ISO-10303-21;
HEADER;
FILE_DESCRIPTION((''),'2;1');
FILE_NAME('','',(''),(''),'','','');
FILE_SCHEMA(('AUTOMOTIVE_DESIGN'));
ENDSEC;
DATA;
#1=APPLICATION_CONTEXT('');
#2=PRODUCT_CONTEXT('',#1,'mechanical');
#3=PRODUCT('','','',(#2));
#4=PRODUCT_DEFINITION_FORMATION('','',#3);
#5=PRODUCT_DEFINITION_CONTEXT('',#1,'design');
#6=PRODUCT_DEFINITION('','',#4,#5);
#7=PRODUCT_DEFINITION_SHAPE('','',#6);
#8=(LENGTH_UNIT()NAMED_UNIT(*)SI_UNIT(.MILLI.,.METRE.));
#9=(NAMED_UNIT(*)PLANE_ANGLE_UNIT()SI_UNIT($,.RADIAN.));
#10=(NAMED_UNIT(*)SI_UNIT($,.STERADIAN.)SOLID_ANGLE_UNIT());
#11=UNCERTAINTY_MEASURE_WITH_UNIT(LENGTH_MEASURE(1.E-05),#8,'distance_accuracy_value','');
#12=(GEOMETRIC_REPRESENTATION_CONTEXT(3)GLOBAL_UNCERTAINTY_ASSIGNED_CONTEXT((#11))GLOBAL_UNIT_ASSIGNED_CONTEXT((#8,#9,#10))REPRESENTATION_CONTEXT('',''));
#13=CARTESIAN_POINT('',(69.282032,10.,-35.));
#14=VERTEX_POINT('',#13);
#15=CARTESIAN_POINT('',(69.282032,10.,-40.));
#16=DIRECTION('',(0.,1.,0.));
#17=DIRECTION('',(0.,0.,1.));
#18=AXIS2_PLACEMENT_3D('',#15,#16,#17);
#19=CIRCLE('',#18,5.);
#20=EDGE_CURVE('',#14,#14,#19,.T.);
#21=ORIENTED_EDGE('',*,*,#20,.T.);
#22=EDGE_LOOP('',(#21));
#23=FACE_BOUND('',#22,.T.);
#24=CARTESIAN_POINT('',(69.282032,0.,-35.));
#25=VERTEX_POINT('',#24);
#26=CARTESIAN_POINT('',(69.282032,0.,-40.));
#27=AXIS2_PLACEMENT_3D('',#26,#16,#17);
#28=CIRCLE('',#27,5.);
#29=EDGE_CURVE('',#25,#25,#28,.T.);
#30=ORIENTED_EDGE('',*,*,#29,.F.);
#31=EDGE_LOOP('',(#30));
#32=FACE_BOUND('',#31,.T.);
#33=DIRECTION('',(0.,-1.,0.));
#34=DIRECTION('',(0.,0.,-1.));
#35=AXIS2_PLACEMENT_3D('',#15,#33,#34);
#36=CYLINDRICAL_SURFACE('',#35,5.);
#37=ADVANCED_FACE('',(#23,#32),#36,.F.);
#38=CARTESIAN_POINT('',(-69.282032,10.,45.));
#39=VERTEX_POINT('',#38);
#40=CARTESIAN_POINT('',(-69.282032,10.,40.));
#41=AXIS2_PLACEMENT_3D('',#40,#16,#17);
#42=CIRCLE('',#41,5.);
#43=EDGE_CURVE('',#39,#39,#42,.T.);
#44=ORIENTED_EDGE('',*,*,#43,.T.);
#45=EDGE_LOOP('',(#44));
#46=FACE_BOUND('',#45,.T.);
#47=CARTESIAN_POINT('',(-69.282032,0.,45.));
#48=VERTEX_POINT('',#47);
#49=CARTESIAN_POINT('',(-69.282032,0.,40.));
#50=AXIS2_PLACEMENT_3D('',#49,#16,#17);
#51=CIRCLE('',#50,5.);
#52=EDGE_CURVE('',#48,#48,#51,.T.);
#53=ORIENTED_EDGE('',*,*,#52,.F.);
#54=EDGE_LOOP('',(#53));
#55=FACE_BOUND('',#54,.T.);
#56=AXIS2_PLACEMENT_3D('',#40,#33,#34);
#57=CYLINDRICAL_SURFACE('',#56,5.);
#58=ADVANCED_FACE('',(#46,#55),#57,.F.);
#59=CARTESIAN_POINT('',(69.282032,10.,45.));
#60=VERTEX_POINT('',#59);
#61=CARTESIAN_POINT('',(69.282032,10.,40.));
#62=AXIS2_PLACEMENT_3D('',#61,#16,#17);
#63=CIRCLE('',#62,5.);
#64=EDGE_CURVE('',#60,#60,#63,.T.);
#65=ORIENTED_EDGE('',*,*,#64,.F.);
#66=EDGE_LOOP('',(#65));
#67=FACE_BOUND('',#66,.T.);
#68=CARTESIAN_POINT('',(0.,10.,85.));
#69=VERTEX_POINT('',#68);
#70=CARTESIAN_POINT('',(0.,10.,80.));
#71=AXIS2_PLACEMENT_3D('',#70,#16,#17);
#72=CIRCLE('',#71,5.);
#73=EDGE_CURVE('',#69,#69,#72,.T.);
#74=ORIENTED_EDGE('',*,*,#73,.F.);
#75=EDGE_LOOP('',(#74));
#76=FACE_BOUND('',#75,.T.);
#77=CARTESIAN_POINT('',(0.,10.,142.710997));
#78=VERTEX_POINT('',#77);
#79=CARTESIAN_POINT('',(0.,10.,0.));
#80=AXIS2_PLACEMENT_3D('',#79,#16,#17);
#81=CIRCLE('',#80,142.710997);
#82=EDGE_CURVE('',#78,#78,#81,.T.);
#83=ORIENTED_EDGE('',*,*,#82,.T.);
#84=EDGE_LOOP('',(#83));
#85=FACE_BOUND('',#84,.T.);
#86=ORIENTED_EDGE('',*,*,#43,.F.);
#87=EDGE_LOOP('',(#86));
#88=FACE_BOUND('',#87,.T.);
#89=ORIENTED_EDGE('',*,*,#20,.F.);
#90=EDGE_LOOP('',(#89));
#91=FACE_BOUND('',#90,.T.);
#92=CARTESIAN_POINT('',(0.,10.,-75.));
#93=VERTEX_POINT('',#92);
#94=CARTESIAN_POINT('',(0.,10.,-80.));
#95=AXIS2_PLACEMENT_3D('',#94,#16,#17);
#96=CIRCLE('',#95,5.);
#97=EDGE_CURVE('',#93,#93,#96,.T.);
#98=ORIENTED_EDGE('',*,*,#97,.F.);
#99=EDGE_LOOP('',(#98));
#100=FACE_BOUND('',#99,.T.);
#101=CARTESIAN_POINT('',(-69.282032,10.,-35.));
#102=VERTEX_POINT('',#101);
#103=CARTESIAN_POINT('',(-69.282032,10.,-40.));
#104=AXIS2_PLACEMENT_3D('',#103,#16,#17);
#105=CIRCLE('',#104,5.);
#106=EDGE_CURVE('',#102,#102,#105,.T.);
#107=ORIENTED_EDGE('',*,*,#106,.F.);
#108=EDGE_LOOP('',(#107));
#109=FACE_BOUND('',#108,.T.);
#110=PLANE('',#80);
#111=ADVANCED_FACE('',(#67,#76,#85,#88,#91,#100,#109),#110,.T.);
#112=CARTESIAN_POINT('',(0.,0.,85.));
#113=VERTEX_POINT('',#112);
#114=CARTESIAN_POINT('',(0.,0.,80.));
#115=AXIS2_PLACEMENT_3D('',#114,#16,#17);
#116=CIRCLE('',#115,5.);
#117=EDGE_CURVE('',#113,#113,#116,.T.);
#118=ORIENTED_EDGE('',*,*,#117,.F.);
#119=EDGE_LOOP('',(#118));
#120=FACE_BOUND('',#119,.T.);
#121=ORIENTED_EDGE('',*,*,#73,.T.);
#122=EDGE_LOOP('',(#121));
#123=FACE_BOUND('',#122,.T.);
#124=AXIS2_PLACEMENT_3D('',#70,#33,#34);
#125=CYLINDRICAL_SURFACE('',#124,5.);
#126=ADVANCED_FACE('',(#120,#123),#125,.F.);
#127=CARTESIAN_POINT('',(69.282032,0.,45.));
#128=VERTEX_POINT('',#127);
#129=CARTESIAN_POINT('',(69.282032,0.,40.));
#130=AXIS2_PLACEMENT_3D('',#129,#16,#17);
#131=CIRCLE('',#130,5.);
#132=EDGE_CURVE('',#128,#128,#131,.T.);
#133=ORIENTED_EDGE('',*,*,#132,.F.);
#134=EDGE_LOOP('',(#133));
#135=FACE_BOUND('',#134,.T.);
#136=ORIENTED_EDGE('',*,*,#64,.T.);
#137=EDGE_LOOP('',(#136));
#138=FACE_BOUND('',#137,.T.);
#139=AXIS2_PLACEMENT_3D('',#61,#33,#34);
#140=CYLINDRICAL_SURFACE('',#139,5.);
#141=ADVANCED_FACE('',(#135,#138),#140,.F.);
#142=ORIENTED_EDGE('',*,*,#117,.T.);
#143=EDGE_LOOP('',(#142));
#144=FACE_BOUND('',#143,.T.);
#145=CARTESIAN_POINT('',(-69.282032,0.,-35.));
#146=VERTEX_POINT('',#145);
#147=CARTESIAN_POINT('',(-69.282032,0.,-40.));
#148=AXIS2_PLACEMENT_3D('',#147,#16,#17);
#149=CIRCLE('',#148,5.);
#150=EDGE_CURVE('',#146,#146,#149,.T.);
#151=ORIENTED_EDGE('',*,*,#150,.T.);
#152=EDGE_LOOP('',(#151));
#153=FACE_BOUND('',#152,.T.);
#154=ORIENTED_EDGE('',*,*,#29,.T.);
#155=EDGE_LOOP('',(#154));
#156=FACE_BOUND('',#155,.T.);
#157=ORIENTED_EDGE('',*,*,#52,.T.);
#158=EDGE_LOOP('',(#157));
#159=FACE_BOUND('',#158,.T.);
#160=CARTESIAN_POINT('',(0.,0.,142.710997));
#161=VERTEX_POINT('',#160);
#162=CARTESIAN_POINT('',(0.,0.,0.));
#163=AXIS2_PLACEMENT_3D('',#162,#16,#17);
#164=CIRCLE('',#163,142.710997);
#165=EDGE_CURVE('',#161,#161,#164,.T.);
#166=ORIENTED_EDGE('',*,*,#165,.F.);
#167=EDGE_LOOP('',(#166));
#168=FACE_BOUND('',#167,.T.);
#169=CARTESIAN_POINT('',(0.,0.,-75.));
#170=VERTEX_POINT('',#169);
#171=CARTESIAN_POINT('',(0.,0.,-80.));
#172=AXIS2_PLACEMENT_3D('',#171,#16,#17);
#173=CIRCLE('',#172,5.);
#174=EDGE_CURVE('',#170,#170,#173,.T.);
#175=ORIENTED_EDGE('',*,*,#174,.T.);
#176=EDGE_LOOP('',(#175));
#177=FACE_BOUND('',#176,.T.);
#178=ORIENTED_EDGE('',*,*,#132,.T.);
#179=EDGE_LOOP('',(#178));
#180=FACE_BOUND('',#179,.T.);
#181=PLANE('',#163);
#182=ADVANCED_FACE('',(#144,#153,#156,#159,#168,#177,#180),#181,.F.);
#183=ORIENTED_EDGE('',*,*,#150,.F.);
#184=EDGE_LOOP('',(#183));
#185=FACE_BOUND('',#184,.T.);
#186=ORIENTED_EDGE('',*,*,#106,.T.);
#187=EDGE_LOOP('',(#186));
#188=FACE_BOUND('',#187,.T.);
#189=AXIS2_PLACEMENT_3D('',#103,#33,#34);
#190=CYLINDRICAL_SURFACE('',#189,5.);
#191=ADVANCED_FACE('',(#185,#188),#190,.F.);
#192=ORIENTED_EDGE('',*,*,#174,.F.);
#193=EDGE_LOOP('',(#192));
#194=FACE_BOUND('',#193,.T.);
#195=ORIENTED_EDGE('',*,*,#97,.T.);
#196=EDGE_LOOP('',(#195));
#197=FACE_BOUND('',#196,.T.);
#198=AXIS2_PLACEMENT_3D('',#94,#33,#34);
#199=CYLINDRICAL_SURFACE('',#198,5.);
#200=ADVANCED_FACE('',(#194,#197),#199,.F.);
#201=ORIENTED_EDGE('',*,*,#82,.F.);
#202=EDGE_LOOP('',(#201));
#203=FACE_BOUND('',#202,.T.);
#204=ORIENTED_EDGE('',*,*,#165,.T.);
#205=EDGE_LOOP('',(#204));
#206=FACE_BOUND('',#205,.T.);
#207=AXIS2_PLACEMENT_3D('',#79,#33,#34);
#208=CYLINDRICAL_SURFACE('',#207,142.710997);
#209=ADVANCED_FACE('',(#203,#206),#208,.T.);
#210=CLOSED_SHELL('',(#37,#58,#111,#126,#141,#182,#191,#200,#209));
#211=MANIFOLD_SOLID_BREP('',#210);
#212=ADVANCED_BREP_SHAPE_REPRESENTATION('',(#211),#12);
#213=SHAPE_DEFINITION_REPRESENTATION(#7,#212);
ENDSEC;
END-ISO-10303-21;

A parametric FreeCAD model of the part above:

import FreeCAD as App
import Part
import Sketcher

V = App.Vector

doc = App.newDocument("Part")
body = doc.addObject("PartDesign::Body", "Body")

sketch1 = body.newObject("Sketcher::SketchObject", "Sketch")
sketch1.AttachmentSupport = (doc.getObject("XZ_Plane"), [""])
sketch1.MapMode = "FlatFace"
sketch1.addGeometry([
    Part.Circle(V(0, 0, 0), V(0, 0, 1), 143),
    Part.Circle(V(-69, 40, 0), V(0, 0, 1), 5),
    Part.Circle(V(0, 80, 0), V(0, 0, 1), 5),
    Part.Circle(V(69, 40, 0), V(0, 0, 1), 5),
    Part.Circle(V(-69, -40, 0), V(0, 0, 1), 5),
    Part.Circle(V(69, -40, 0), V(0, 0, 1), 5),
    Part.Circle(V(0, -80, 0), V(0, 0, 1), 5),
], False)
sketch1.addConstraint([
    Sketcher.Constraint("Coincident", 0, 3, -1, 1),
    Sketcher.Constraint("Equal", 1, 2),
    Sketcher.Constraint("Equal", 2, 3),
    Sketcher.Constraint("Equal", 3, 4),
    Sketcher.Constraint("Equal", 4, 5),
    Sketcher.Constraint("Equal", 5, 6),
    Sketcher.Constraint("Symmetric", 3, 3, 4, 3, -1, 1),
    Sketcher.Constraint("Symmetric", 1, 3, 5, 3, -1, 1),
    Sketcher.Constraint("Symmetric", 2, 3, 6, 3, -1, 1),
    Sketcher.Constraint("Symmetric", 1, 3, 3, 3, -2),
    Sketcher.Constraint("PointOnObject", 2, 3, -2),
    Sketcher.Constraint("Diameter", 1, 10.0),
    Sketcher.Constraint("DistanceY", -1, 1, 1, 3, 40.0),
    Sketcher.Constraint("DistanceY", -1, 1, 2, 3, 80.0),
    Sketcher.Constraint("Diameter", 0, 285.421995),
    Sketcher.Constraint("DistanceX", 1, 3, -1, 1, 69.282032),
])
pad1 = body.newObject("PartDesign::Pad", "Pad")
pad1.Profile = sketch1
pad1.Length = 10
pad1.Reversed = True

doc.recompute()
